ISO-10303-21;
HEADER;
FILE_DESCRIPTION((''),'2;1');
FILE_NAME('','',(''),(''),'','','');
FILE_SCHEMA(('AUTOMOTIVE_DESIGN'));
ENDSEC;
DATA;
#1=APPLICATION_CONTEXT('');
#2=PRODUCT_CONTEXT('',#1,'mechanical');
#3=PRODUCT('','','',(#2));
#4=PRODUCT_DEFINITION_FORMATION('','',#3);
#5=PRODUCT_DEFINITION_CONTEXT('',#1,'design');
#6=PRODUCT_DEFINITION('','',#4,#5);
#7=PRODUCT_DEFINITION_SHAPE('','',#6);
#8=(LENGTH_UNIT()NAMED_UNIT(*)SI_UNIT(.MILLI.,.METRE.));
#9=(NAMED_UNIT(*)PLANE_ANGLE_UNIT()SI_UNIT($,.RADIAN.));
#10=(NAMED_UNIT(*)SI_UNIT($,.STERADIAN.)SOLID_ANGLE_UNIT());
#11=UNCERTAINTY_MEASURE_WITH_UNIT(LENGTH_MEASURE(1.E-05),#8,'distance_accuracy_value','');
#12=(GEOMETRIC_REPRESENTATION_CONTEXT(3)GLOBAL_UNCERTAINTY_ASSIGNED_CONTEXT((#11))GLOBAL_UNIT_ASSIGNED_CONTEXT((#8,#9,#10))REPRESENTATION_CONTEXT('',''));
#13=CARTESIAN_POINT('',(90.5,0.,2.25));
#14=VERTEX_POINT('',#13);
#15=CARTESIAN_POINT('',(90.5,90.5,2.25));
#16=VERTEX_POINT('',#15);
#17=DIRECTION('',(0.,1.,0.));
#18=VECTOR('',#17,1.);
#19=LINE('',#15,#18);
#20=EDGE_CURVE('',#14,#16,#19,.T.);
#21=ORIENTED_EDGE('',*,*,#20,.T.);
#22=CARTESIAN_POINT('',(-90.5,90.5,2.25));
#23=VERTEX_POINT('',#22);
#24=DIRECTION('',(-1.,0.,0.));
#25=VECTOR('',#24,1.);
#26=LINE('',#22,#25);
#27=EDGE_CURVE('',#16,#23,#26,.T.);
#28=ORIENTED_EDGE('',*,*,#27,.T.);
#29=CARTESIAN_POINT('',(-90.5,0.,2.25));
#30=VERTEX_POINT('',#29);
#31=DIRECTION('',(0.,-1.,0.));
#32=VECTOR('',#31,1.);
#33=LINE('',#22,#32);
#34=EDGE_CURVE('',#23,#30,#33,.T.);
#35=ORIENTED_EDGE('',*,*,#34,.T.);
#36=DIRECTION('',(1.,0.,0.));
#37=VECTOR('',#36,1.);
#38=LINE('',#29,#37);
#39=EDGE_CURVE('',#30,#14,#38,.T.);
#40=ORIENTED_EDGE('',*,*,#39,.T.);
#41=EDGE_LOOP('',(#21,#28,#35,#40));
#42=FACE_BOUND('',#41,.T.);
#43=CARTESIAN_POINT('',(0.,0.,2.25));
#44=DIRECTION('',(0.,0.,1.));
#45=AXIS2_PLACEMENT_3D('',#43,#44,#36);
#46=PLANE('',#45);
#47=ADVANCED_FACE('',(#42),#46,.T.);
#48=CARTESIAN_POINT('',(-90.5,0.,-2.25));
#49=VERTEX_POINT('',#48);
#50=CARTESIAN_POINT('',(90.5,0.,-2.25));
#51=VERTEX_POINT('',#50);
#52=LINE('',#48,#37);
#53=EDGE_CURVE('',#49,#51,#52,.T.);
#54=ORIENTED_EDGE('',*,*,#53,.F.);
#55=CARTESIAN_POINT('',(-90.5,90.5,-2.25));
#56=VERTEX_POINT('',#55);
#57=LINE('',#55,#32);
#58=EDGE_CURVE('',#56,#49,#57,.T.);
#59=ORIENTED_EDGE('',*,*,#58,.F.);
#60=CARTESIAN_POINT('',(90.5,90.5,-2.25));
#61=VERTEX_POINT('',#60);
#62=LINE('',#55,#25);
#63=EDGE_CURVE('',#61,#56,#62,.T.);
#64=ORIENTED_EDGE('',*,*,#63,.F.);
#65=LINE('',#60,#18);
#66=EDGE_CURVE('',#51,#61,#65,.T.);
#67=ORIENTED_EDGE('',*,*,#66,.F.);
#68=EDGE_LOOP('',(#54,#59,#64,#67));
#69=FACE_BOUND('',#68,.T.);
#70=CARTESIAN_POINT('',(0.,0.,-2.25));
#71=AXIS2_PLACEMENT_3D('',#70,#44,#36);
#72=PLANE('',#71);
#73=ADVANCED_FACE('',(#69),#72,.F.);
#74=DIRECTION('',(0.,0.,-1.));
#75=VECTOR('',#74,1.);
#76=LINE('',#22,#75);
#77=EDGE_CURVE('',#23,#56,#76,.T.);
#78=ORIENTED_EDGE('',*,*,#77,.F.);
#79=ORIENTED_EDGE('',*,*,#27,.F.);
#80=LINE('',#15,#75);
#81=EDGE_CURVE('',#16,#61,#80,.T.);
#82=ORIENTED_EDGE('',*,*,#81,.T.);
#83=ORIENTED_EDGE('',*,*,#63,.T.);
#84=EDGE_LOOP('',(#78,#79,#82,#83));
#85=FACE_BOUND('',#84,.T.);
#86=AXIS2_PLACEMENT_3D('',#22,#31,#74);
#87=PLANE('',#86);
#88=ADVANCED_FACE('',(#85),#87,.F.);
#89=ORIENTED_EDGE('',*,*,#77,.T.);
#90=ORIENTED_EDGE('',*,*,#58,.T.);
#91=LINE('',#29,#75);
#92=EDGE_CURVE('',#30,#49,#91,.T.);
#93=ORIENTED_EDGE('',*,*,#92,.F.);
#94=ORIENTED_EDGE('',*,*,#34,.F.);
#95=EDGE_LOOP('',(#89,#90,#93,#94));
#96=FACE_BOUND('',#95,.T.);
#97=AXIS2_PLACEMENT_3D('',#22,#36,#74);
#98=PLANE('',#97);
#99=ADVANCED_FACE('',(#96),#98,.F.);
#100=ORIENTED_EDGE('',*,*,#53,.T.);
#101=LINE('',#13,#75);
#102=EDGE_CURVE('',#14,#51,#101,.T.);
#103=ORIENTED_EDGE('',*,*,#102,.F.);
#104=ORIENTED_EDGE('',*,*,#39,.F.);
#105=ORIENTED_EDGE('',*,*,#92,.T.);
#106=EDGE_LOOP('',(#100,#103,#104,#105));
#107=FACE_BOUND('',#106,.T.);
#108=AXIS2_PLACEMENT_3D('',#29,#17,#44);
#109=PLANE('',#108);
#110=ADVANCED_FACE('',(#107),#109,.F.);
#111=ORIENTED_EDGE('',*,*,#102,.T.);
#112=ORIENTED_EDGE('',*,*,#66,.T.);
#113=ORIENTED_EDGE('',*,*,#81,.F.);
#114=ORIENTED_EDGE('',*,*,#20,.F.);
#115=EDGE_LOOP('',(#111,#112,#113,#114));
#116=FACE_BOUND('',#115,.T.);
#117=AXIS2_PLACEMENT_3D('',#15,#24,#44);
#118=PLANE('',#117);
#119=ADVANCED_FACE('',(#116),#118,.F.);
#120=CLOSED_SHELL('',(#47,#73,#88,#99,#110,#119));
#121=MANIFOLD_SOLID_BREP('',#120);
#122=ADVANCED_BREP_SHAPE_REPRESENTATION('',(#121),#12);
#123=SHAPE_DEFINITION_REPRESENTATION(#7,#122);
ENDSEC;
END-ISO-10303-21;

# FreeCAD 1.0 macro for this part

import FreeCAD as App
import Part
import Sketcher

V = App.Vector
Q = App.Units.Quantity

doc = App.newDocument("Part")
body = doc.addObject("PartDesign::Body", "Body")

sketch1 = body.newObject("Sketcher::SketchObject", "Sketch")
sketch1.AttachmentSupport = (doc.getObject("XY_Plane"), [""])
sketch1.MapMode = "FlatFace"
sketch1.addGeometry(Part.LineSegment(V(-90.5, 90.5, 0), V(-90.5, 0, 0)), False)
sketch1.addGeometry(Part.LineSegment(V(-90.5, 0, 0), V(90.5, 0, 0)), False)
sketch1.addGeometry(Part.LineSegment(V(90.5, 0, 0), V(90.5, 90.5, 0)), False)
sketch1.addGeometry(Part.LineSegment(V(90.5, 90.5, 0), V(-90.5, 90.5, 0)), False)
sketch1.addConstraint(Sketcher.Constraint("Coincident", 0, 2, 1, 1))
sketch1.addConstraint(Sketcher.Constraint("Coincident", 1, 2, 2, 1))
sketch1.addConstraint(Sketcher.Constraint("Coincident", 2, 2, 3, 1))
sketch1.addConstraint(Sketcher.Constraint("Coincident", 3, 2, 0, 1))
sketch1.addConstraint(Sketcher.Constraint("Vertical", 0))
sketch1.addConstraint(Sketcher.Constraint("Horizontal", 1))
sketch1.addConstraint(Sketcher.Constraint("Vertical", 2))
sketch1.addConstraint(Sketcher.Constraint("Horizontal", 3))
sketch1.addConstraint(Sketcher.Constraint("Symmetric", 0, 2, 1, 2, -1, 1))
sketch1.addConstraint(Sketcher.Constraint("DistanceX", 1, 1, 1, 2, Q("181 mm")))
sketch1.addConstraint(Sketcher.Constraint("DistanceY", 0, 2, 0, 1, Q("90.5 mm")))
pad1 = body.newObject("PartDesign::Pad", "Pad")
pad1.Profile = sketch1
pad1.Length = 4.5
pad1.Midplane = True

doc.recompute()
